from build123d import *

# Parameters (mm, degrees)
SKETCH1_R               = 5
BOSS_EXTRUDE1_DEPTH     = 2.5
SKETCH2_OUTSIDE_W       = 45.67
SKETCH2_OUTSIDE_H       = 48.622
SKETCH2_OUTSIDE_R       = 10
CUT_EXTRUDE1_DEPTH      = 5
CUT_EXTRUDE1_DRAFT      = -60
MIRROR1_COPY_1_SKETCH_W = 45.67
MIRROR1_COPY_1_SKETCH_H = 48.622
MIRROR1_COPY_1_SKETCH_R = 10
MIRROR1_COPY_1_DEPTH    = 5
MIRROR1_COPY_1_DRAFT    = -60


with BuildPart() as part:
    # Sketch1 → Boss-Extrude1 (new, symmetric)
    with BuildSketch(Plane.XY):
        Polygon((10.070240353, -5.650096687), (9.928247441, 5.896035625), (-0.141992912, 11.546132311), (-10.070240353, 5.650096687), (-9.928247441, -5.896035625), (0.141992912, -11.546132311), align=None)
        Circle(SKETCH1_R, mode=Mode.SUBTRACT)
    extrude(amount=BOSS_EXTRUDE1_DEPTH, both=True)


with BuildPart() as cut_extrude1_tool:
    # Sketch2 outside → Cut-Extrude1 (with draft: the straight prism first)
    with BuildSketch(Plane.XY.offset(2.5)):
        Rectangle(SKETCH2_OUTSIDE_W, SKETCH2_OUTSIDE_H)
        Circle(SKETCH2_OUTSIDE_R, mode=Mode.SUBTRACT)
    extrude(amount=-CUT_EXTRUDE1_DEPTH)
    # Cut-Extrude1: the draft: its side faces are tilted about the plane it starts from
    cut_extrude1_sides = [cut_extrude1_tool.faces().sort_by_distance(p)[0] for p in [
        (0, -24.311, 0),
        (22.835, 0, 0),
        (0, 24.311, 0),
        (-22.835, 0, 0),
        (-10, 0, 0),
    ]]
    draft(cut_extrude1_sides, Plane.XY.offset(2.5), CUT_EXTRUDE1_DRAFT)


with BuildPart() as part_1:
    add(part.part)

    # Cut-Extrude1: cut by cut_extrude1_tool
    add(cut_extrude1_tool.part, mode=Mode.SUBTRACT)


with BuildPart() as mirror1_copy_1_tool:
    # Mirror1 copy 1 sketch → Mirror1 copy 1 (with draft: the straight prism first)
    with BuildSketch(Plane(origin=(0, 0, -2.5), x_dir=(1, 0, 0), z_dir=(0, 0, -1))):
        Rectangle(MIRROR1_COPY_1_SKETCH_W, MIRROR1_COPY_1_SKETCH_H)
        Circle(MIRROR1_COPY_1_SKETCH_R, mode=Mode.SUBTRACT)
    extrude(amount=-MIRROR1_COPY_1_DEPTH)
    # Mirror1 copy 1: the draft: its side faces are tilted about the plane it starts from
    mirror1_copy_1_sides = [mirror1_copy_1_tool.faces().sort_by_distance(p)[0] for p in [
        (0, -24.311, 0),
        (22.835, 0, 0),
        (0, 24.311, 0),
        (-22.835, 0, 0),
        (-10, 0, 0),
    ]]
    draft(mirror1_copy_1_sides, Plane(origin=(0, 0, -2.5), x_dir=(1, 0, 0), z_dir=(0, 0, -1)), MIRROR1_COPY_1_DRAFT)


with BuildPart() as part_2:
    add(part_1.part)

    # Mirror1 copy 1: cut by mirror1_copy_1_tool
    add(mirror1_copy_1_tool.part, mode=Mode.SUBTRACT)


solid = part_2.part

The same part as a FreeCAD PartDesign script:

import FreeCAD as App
import Part
import Sketcher

V = App.Vector
Q = App.Units.Quantity


def faces_at(feature, points):
    """Names of the faces that lie closest to the given points."""
    faces = feature.Shape.Faces
    near = lambda p: min(range(len(faces)), key=lambda i: faces[i].distToShape(Part.Vertex(*p))[0])
    return sorted({f"Face{near(p) + 1}" for p in points})


def add_polygon(sketch, points):
    """Adds a closed chain of lines whose ends are joined by coincident constraints."""
    first, n = sketch.GeometryCount, len(points)
    for a, b in zip(points, points[1:] + points[:1]):
        sketch.addGeometry(Part.LineSegment(App.Vector(*a, 0), App.Vector(*b, 0)), False)
    for i in range(n):
        sketch.addConstraint(Sketcher.Constraint("Coincident", first + i, 2, first + (i + 1) % n, 1))

doc = App.newDocument("Part")
body = doc.addObject("PartDesign::Body", "Body")

sketch1 = body.newObject("Sketcher::SketchObject", "Sketch")
sketch1.AttachmentSupport = (doc.getObject("XY_Plane"), [""])
sketch1.MapMode = "FlatFace"
add_polygon(sketch1, [(10, -6), (10, 6), (0, 12), (-10, 6), (-10, -6), (0, -12)])
sketch1.addGeometry(Part.Circle(V(0, 0, 0), V(0, 0, 1), 5), False)
sketch1.addConstraint(Sketcher.Constraint("Coincident", 6, 3, -1, 1))
sketch1.addConstraint(Sketcher.Constraint("Symmetric", 0, 2, 3, 2, -1, 1))
sketch1.addConstraint(Sketcher.Constraint("Symmetric", 1, 2, 4, 2, -1, 1))
sketch1.addConstraint(Sketcher.Constraint("Symmetric", 2, 2, 5, 2, -1, 1))
sketch1.addConstraint(Sketcher.Constraint("Equal", 0, 1))
sketch1.addConstraint(Sketcher.Constraint("Equal", 1, 2))
sketch1.addConstraint(Sketcher.Constraint("Diameter", 6, Q("10 mm")))
sketch1.addConstraint(Sketcher.Constraint("DistanceX", 2, 2, -1, 1, Q("10.07024 mm")))
sketch1.addConstraint(Sketcher.Constraint("DistanceX", 1, 2, 0, 2, Q("10.07024 mm")))
sketch1.addConstraint(Sketcher.Constraint("DistanceY", 2, 2, 0, 2, Q("0.245939 mm")))
sketch1.addConstraint(Sketcher.Constraint("DistanceY", 3, 2, 0, 2, Q("11.792071 mm")))
pad1 = body.newObject("PartDesign::Pad", "Pad")
pad1.Profile = sketch1
pad1.Length = 5
pad1.Midplane = True
body2 = doc.addObject("PartDesign::Body", "Body001")

sketch2 = body2.newObject("Sketcher::SketchObject", "Sketch001")
sketch2.AttachmentSupport = (doc.getObject("XY_Plane001"), [""])
sketch2.MapMode = "FlatFace"
sketch2.AttachmentOffset = App.Placement(V(0, 0, 2.5), App.Rotation())
add_polygon(sketch2, [(-23, 24), (-23, -24), (23, -24), (23, 24)])
sketch2.addGeometry(Part.Circle(V(0, 0, 0), V(0, 0, 1), 10), False)
sketch2.addConstraint(Sketcher.Constraint("Vertical", 0))
sketch2.addConstraint(Sketcher.Constraint("Horizontal", 1))
sketch2.addConstraint(Sketcher.Constraint("Vertical", 2))
sketch2.addConstraint(Sketcher.Constraint("Horizontal", 3))
sketch2.addConstraint(Sketcher.Constraint("Coincident", 4, 3, -1, 1))
sketch2.addConstraint(Sketcher.Constraint("Symmetric", 0, 2, 2, 2, -1, 1))
sketch2.addConstraint(Sketcher.Constraint("Diameter", 4, Q("20 mm")))
sketch2.addConstraint(Sketcher.Constraint("DistanceX", 1, 1, 1, 2, Q("45.67 mm")))
sketch2.addConstraint(Sketcher.Constraint("DistanceY", 0, 2, 0, 1, Q("48.622 mm")))
pad2 = body2.newObject("PartDesign::Pad", "Pad001")
pad2.Profile = sketch2
pad2.Length = 5
pad2.Reversed = True
doc.recompute()

datumplane = body2.newObject("PartDesign::Plane", "DatumPlane")
datumplane.AttachmentSupport = (doc.getObject("XY_Plane001"), [""])
datumplane.MapMode = "FlatFace"
datumplane.AttachmentOffset = App.Placement(V(0, 0, 2.5), App.Rotation())
draft = body2.newObject("PartDesign::Draft", "Draft")
draft.Base = (pad2, faces_at(pad2, [
    (0, -24.311, 0),
    (22.835, 0, 0),
    (0, 24.311, 0),
    (-22.835, 0, 0),
    (-10, 0, 0),
]))
draft.NeutralPlane = (datumplane, [""])
draft.Angle = 60
draft.Reversed = True
doc.recompute()

boolean = body.newObject("PartDesign::Boolean", "Boolean")
boolean.Type = "Cut"
boolean.addObjects([body2])
body3 = doc.addObject("PartDesign::Body", "Body002")

sketch3 = body3.newObject("Sketcher::SketchObject", "Sketch002")
sketch3.AttachmentSupport = (doc.getObject("XY_Plane002"), [""])
sketch3.MapMode = "FlatFace"
sketch3.AttachmentOffset = App.Placement(V(0, 0, -2.5), App.Rotation())
add_polygon(sketch3, [(-23, -24), (-23, 24), (23, 24), (23, -24)])
sketch3.addGeometry(Part.Circle(V(0, 0, 0), V(0, 0, 1), 10), False)
sketch3.addConstraint(Sketcher.Constraint("Vertical", 0))
sketch3.addConstraint(Sketcher.Constraint("Horizontal", 1))
sketch3.addConstraint(Sketcher.Constraint("Vertical", 2))
sketch3.addConstraint(Sketcher.Constraint("Horizontal", 3))
sketch3.addConstraint(Sketcher.Constraint("Coincident", 4, 3, -1, 1))
sketch3.addConstraint(Sketcher.Constraint("Symmetric", 0, 2, 2, 2, -1, 1))
sketch3.addConstraint(Sketcher.Constraint("Diameter", 4, Q("20 mm")))
sketch3.addConstraint(Sketcher.Constraint("DistanceX", 1, 1, 1, 2, Q("45.67 mm")))
sketch3.addConstraint(Sketcher.Constraint("DistanceY", 0, 1, 0, 2, Q("48.622 mm")))
pad3 = body3.newObject("PartDesign::Pad", "Pad002")
pad3.Profile = sketch3
pad3.Length = 5
doc.recompute()

datumplane2 = body3.newObject("PartDesign::Plane", "DatumPlane001")
datumplane2.AttachmentSupport = (doc.getObject("XY_Plane002"), [""])
datumplane2.MapMode = "FlatFace"
datumplane2.AttachmentOffset = App.Placement(V(0, 0, -2.5), App.Rotation())
draft2 = body3.newObject("PartDesign::Draft", "Draft001")
draft2.Base = (pad3, faces_at(pad3, [
    (0, -24.311, 0),
    (22.835, 0, 0),
    (0, 24.311, 0),
    (-22.835, 0, 0),
    (-10, 0, 0),
]))
draft2.NeutralPlane = (datumplane2, [""])
draft2.Angle = 60
draft2.Reversed = False
doc.recompute()

boolean2 = body.newObject("PartDesign::Boolean", "Boolean001")
boolean2.Type = "Cut"
boolean2.addObjects([body3])

doc.recompute()
